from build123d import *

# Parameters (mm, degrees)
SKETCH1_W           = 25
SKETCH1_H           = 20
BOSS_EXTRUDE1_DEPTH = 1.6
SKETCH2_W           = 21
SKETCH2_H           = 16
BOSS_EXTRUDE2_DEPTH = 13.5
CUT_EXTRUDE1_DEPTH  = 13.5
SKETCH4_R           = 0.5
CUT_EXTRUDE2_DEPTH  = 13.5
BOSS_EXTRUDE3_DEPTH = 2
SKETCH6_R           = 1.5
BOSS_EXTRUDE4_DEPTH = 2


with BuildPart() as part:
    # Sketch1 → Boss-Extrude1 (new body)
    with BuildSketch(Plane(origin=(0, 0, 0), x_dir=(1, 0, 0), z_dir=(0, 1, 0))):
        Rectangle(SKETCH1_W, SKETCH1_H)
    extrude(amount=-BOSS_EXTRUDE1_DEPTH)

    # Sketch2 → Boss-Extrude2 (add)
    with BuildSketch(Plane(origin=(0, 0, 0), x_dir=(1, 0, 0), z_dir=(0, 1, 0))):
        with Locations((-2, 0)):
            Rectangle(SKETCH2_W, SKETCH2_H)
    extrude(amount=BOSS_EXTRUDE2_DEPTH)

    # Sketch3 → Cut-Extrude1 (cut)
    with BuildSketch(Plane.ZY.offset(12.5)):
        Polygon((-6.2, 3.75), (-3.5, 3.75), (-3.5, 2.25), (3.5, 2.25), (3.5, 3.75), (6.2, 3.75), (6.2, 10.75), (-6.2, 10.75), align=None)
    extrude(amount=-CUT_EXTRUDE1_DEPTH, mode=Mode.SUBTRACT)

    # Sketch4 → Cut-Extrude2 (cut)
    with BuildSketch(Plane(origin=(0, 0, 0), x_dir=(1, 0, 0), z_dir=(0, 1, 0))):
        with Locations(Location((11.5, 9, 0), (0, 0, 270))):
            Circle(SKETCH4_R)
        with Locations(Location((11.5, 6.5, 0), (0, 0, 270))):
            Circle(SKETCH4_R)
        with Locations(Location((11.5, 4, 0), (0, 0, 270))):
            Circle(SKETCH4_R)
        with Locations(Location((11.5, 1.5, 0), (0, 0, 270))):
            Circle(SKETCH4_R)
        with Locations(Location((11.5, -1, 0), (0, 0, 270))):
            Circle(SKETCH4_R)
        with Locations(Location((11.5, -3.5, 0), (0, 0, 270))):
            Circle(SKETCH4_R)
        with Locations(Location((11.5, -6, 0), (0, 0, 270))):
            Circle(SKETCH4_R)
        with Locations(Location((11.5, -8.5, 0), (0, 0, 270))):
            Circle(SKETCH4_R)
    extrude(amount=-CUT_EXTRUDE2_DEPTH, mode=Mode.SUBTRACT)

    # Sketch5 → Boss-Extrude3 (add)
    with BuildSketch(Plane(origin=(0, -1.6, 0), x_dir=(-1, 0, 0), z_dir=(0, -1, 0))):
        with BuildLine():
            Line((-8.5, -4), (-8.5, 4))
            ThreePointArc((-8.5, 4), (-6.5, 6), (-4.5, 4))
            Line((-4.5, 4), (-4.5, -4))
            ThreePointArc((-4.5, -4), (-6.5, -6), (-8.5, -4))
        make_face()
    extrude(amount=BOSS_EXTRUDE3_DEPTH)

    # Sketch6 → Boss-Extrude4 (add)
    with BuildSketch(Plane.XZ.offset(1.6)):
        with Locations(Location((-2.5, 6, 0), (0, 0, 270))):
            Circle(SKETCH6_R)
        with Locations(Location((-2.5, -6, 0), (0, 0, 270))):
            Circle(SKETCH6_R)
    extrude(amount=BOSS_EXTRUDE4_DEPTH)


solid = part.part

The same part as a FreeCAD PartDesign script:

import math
import FreeCAD as App
import Part
import Sketcher
from FreeCAD import Vector
Q = App.Units.Quantity


def add_polygon(sketch, points):
    """Adds a closed chain of lines whose ends are joined by coincident constraints."""
    first, n = sketch.GeometryCount, len(points)
    for a, b in zip(points, points[1:] + points[:1]):
        sketch.addGeometry(Part.LineSegment(App.Vector(*a, 0), App.Vector(*b, 0)), False)
    for i in range(n):
        sketch.addConstraint(Sketcher.Constraint("Coincident", first + i, 2, first + (i + 1) % n, 1))

doc = App.newDocument("Part")
body = doc.addObject("PartDesign::Body", "Body")

sketch1 = body.newObject("Sketcher::SketchObject", "Sketch")
sketch1.AttachmentSupport = (doc.getObject("XZ_Plane"), [""])
sketch1.MapMode = "FlatFace"
add_polygon(sketch1, [(-12, -10), (-12, 10), (12, 10), (12, -10)])
sketch1.addConstraint([
    Sketcher.Constraint("Vertical", 0),
    Sketcher.Constraint("Horizontal", 1),
    Sketcher.Constraint("Vertical", 2),
    Sketcher.Constraint("Horizontal", 3),
    Sketcher.Constraint("Symmetric", 0, 2, 2, 2, -1, 1),
    Sketcher.Constraint("DistanceX", 1, 1, 1, 2, Q("25 mm")),
    Sketcher.Constraint("DistanceY", 0, 1, 0, 2, Q("20 mm")),
])
pad1 = body.newObject("PartDesign::Pad", "Pad")
pad1.Profile = sketch1
pad1.Length = 1.6

sketch2 = body.newObject("Sketcher::SketchObject", "Sketch001")
sketch2.AttachmentSupport = (doc.getObject("XZ_Plane"), [""])
sketch2.MapMode = "FlatFace"
add_polygon(sketch2, [(-12, -8), (-12, 8), (8, 8), (8, -8)])
sketch2.addConstraint([
    Sketcher.Constraint("Vertical", 0),
    Sketcher.Constraint("Horizontal", 1),
    Sketcher.Constraint("Vertical", 2),
    Sketcher.Constraint("Horizontal", 3),
    Sketcher.Constraint("DistanceX", 1, 1, 1, 2, Q("21 mm")),
    Sketcher.Constraint("DistanceY", 0, 1, 0, 2, Q("16 mm")),
    Sketcher.Constraint("DistanceY", -1, 1, 0, 2, Q("8 mm")),
    Sketcher.Constraint("DistanceX", 0, 2, -1, 1, Q("12.5 mm")),
])
pad2 = body.newObject("PartDesign::Pad", "Pad001")
pad2.Profile = sketch2
pad2.Length = 13.5
pad2.Reversed = True

sketch3 = body.newObject("Sketcher::SketchObject", "Sketch002")
sketch3.AttachmentSupport = (doc.getObject("YZ_Plane"), [""])
sketch3.MapMode = "FlatFace"
sketch3.AttachmentOffset = App.Placement(Vector(0, 0, -12.5), App.Rotation())
add_polygon(sketch3, [(3.8, -6.2), (3.8, -3.5), (2.2, -3.5), (2.2, 3.5), (3.8, 3.5), (3.8, 6.2), (10.8, 6.2), (10.8, -6.2)])
sketch3.addConstraint([
    Sketcher.Constraint("Vertical", 0),
    Sketcher.Constraint("Horizontal", 1),
    Sketcher.Constraint("Vertical", 2),
    Sketcher.Constraint("Horizontal", 3),
    Sketcher.Constraint("Vertical", 4),
    Sketcher.Constraint("Horizontal", 5),
    Sketcher.Constraint("Vertical", 6),
    Sketcher.Constraint("Horizontal", 7),
    Sketcher.Constraint("Symmetric", 0, 2, 3, 2, -1),
    Sketcher.Constraint("Equal", 7, 2),
    Sketcher.Constraint("Equal", 0, 4),
    Sketcher.Constraint("DistanceX", 5, 1, 5, 2, Q("7 mm")),
    Sketcher.Constraint("DistanceX", 1, 2, 1, 1, Q("1.5 mm")),
    Sketcher.Constraint("DistanceY", 0, 1, 0, 2, Q("2.7 mm")),
    Sketcher.Constraint("DistanceX", -1, 1, 0, 2, Q("3.75 mm")),
])
pocket1 = body.newObject("PartDesign::Pocket", "Pocket")
pocket1.Profile = sketch3
pocket1.Length = 13.5
pocket1.Reversed = True

sketch4 = body.newObject("Sketcher::SketchObject", "Sketch003")
sketch4.AttachmentSupport = (doc.getObject("XZ_Plane"), [""])
sketch4.MapMode = "FlatFace"
sketch4.addGeometry([
    Part.Circle(Vector(11.5, -9, 0), Vector(0, 0, 1), 0.5),
    Part.Circle(Vector(11.5, -6.5, 0), Vector(0, 0, 1), 0.5),
    Part.Circle(Vector(11.5, -4, 0), Vector(0, 0, 1), 0.5),
    Part.Circle(Vector(11.5, -1.5, 0), Vector(0, 0, 1), 0.5),
    Part.Circle(Vector(11.5, 1, 0), Vector(0, 0, 1), 0.5),
    Part.Circle(Vector(11.5, 3.5, 0), Vector(0, 0, 1), 0.5),
    Part.Circle(Vector(11.5, 6, 0), Vector(0, 0, 1), 0.5),
    Part.Circle(Vector(11.5, 8.5, 0), Vector(0, 0, 1), 0.5),
], False)
sketch4.addConstraint([
    Sketcher.Constraint("Equal", 0, 1),
    Sketcher.Constraint("Equal", 1, 2),
    Sketcher.Constraint("Equal", 2, 3),
    Sketcher.Constraint("Equal", 3, 4),
    Sketcher.Constraint("Equal", 4, 5),
    Sketcher.Constraint("Equal", 5, 6),
    Sketcher.Constraint("Equal", 6, 7),
    Sketcher.Constraint("Vertical", 0, 3, 1, 3),
    Sketcher.Constraint("Vertical", 1, 3, 2, 3),
    Sketcher.Constraint("Vertical", 2, 3, 3, 3),
    Sketcher.Constraint("Vertical", 3, 3, 4, 3),
    Sketcher.Constraint("Vertical", 4, 3, 5, 3),
    Sketcher.Constraint("Vertical", 5, 3, 6, 3),
    Sketcher.Constraint("Vertical", 6, 3, 7, 3),
    Sketcher.Constraint("Diameter", 0, Q("1 mm")),
    Sketcher.Constraint("DistanceY", 0, 3, -1, 1, Q("9 mm")),
    Sketcher.Constraint("DistanceY", 2, 3, -1, 1, Q("4 mm")),
    Sketcher.Constraint("DistanceY", -1, 1, 4, 3, Q("1 mm")),
    Sketcher.Constraint("DistanceY", -1, 1, 6, 3, Q("6 mm")),
    Sketcher.Constraint("DistanceY", 1, 3, 3, 3, Q("5 mm")),
    Sketcher.Constraint("DistanceY", 3, 3, 5, 3, Q("5 mm")),
    Sketcher.Constraint("DistanceY", 5, 3, 7, 3, Q("5 mm")),
    Sketcher.Constraint("DistanceX", -1, 1, 0, 3, Q("11.5 mm")),
    Sketcher.Constraint("DistanceY", 1, 3, -1, 1, Q("6.5 mm")),
])
pocket2 = body.newObject("PartDesign::Pocket", "Pocket001")
pocket2.Profile = sketch4
pocket2.Length = 13.5
pocket2.Reversed = True

sketch5 = body.newObject("Sketcher::SketchObject", "Sketch004")
sketch5.AttachmentSupport = (doc.getObject("XZ_Plane"), [""])
sketch5.MapMode = "FlatFace"
sketch5.AttachmentOffset = App.Placement(Vector(0, 0, 1.6), App.Rotation())
sketch5.addGeometry([
    Part.LineSegment(Vector(8.5, -4, 0), Vector(8.5, 4, 0)),
    Part.ArcOfCircle(Part.Circle(Vector(6.5, 4, 0), Vector(0, 0, 1), 2), math.radians(0), math.radians(180)),
    Part.LineSegment(Vector(4.5, 4, 0), Vector(4.5, -4, 0)),
    Part.ArcOfCircle(Part.Circle(Vector(6.5, -4, 0), Vector(0, 0, 1), 2), math.radians(180), math.radians(360)),
], False)
sketch5.addConstraint([
    Sketcher.Constraint("Tangent", 0, 2, 1, 1),
    Sketcher.Constraint("Tangent", 1, 2, 2, 1),
    Sketcher.Constraint("Tangent", 2, 2, 3, 1),
    Sketcher.Constraint("Tangent", 3, 2, 0, 1),
    Sketcher.Constraint("Vertical", 0),
    Sketcher.Constraint("Vertical", 2),
    Sketcher.Constraint("Radius", 1, Q("2 mm")),
    Sketcher.Constraint("DistanceY", 0, 1, 0, 2, Q("8 mm")),
    Sketcher.Constraint("DistanceY", -1, 1, 1, 3, Q("4 mm")),
    Sketcher.Constraint("DistanceX", -1, 1, 1, 3, Q("6.5 mm")),
])
pad3 = body.newObject("PartDesign::Pad", "Pad002")
pad3.Profile = sketch5
pad3.Length = 2

sketch6 = body.newObject("Sketcher::SketchObject", "Sketch005")
sketch6.AttachmentSupport = (doc.getObject("XZ_Plane"), [""])
sketch6.MapMode = "FlatFace"
sketch6.AttachmentOffset = App.Placement(Vector(0, 0, 1.6), App.Rotation())
sketch6.addGeometry([
    Part.Circle(Vector(-2.5, 6, 0), Vector(0, 0, 1), 1.5),
    Part.Circle(Vector(-2.5, -6, 0), Vector(0, 0, 1), 1.5),
], False)
sketch6.addConstraint([
    Sketcher.Constraint("Equal", 0, 1),
    Sketcher.Constraint("Symmetric", 0, 3, 1, 3, -1),
    Sketcher.Constraint("Diameter", 0, Q("3 mm")),
    Sketcher.Constraint("DistanceY", -1, 1, 0, 3, Q("6 mm")),
    Sketcher.Constraint("DistanceX", 0, 3, -1, 1, Q("2.5 mm")),
])
pad4 = body.newObject("PartDesign::Pad", "Pad003")
pad4.Profile = sketch6
pad4.Length = 2

doc.recompute()
